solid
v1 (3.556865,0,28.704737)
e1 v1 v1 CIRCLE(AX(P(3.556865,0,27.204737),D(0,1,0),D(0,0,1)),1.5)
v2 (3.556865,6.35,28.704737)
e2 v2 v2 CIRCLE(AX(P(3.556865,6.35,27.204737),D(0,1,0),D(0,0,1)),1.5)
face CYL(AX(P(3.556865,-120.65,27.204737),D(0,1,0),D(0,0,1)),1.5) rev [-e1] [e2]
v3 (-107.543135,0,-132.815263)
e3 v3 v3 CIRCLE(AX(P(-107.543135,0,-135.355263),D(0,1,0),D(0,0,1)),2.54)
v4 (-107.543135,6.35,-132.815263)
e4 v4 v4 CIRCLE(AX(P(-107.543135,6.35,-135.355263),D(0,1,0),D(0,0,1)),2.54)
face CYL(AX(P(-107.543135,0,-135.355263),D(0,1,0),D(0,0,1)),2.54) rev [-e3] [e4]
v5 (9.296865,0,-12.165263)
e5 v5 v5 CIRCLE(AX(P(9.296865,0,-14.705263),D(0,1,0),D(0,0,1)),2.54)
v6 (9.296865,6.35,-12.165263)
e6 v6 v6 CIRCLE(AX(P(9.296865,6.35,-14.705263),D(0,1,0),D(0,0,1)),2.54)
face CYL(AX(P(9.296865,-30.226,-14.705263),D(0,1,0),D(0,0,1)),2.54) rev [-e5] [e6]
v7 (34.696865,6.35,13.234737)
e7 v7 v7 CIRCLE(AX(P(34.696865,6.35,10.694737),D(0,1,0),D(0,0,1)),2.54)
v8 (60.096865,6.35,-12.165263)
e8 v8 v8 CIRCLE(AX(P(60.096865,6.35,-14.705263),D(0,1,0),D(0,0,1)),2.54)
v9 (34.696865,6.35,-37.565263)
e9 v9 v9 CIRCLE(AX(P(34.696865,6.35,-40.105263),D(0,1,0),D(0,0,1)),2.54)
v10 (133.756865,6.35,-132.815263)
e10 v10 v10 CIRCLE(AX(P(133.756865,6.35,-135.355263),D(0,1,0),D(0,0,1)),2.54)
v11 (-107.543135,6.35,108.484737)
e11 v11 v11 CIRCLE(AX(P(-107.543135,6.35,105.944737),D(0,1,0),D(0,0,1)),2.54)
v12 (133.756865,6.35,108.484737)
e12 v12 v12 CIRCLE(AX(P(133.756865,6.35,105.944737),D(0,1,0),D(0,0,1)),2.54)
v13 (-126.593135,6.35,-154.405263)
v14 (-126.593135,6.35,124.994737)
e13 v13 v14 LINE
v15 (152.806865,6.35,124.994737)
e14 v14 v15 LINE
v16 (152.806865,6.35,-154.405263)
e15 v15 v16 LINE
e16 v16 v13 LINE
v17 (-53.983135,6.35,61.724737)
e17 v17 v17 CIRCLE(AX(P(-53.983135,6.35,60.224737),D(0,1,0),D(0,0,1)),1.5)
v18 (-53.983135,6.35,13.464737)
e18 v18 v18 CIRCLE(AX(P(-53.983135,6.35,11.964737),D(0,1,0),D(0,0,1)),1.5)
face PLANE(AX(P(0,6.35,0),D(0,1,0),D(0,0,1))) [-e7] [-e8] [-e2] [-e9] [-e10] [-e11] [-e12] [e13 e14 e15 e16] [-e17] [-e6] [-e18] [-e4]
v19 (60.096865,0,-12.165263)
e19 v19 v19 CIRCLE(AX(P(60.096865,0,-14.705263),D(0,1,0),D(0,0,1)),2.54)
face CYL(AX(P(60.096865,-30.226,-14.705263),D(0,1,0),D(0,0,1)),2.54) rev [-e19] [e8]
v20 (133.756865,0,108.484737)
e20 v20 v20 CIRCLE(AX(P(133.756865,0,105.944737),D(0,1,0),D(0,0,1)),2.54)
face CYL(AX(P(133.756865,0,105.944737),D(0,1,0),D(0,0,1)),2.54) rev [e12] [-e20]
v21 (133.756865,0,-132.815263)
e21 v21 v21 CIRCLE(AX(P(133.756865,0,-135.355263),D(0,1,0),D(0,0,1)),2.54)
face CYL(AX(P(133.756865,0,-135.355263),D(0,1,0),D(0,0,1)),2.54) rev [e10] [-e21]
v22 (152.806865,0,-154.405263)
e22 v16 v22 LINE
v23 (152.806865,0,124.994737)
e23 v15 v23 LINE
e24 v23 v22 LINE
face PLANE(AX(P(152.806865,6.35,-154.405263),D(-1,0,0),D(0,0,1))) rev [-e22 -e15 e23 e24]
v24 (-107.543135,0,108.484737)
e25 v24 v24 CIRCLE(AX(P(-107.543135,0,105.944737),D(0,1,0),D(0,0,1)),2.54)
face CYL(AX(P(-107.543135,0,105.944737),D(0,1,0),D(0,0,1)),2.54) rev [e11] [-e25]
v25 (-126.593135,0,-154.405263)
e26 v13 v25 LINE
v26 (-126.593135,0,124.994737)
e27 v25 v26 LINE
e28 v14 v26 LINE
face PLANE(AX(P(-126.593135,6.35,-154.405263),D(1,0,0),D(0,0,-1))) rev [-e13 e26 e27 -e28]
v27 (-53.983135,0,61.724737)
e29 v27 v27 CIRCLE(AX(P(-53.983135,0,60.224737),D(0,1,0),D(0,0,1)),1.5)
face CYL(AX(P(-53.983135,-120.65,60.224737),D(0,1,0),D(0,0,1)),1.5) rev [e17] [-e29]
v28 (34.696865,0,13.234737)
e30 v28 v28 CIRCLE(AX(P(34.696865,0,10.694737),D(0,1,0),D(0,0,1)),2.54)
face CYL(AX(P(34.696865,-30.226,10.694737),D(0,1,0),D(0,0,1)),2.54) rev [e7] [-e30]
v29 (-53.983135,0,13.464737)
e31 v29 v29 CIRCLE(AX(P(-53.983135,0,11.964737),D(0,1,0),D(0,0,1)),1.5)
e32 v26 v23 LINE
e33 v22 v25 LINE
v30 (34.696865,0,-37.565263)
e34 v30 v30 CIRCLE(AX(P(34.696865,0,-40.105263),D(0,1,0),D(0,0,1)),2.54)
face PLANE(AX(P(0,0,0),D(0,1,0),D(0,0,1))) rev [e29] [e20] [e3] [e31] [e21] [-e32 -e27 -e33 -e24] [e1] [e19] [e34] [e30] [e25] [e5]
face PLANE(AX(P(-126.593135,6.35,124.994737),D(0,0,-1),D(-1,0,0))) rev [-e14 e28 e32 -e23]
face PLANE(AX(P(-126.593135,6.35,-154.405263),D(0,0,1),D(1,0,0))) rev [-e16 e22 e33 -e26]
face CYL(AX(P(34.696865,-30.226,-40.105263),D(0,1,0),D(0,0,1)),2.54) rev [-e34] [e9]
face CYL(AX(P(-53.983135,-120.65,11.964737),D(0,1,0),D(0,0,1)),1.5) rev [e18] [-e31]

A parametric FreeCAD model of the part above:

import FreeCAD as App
import Part
import Sketcher
Q = App.Units.Quantity


def add_polygon(sketch, points):
    """Adds a closed chain of lines whose ends are joined by coincident constraints."""
    first, n = sketch.GeometryCount, len(points)
    for a, b in zip(points, points[1:] + points[:1]):
        sketch.addGeometry(Part.LineSegment(App.Vector(*a, 0), App.Vector(*b, 0)), False)
    for i in range(n):
        sketch.addConstraint(Sketcher.Constraint("Coincident", first + i, 2, first + (i + 1) % n, 1))

doc = App.newDocument("Part")
body = doc.addObject("PartDesign::Body", "Body")

# Sketch on XZ plane
sketch1 = body.newObject("Sketcher::SketchObject", "Sketch")
sketch1.AttachmentSupport = (doc.getObject("XZ_Plane"), [""])
sketch1.MapMode = "FlatFace"
add_polygon(sketch1, [(-126.593135, -154.405263), (-126.593135, 124.994737), (152.806865, 124.994737), (152.806865, -154.405263)])  # lines 0-3
sketch1.addConstraint([
    Sketcher.Constraint("Vertical", 0),
    Sketcher.Constraint("Horizontal", 1),
    Sketcher.Constraint("Vertical", 2),
    Sketcher.Constraint("Horizontal", 3),
    Sketcher.Constraint("Equal", 3, 0),
    Sketcher.Constraint("DistanceX", 1, 1, 1, 2, Q("11 in")),
    Sketcher.Constraint("DistanceX", 0, 2, -1, 1, 126.593135),
    Sketcher.Constraint("DistanceY", -1, 1, 0, 2, 124.994737),
])
pad1 = body.newObject("PartDesign::Pad", "Pad")
pad1.Profile = sketch1
pad1.Length = Q("0.25 in")
pad1.Reversed = True

# Sketch on XZ plane
sketch2 = body.newObject("Sketcher::SketchObject", "Sketch001")
sketch2.AttachmentSupport = (doc.getObject("XZ_Plane"), [""])
sketch2.MapMode = "FlatFace"
sketch2.AttachmentOffset = App.Placement(App.Vector(0, 0, -0.25 * 25.4), App.Rotation())
sketch2.addGeometry([
    Part.Circle(App.Vector(-107.543135, -135.355263, 0), App.Vector(0, 0, 1), 2.54),
    Part.Circle(App.Vector(133.756865, -135.355263, 0), App.Vector(0, 0, 1), 2.54),
    Part.Circle(App.Vector(133.756865, 105.944737, 0), App.Vector(0, 0, 1), 2.54),
    Part.Circle(App.Vector(-107.543135, 105.944737, 0), App.Vector(0, 0, 1), 2.54),
], False)
sketch2.addConstraint([
    Sketcher.Constraint("Equal", 0, 1),
    Sketcher.Constraint("Equal", 1, 2),
    Sketcher.Constraint("Equal", 2, 3),
    Sketcher.Constraint("Horizontal", 0, 3, 1, 3),
    Sketcher.Constraint("Horizontal", 2, 3, 3, 3),
    Sketcher.Constraint("Vertical", 1, 3, 2, 3),
    Sketcher.Constraint("Vertical", 0, 3, 3, 3),
    Sketcher.Constraint("Diameter", 0, Q("0.2 in")),
    Sketcher.Constraint("DistanceX", 0, 3, 1, 3, Q("9.5 in")),
    Sketcher.Constraint("DistanceY", 1, 3, 2, 3, Q("9.5 in")),
    Sketcher.Constraint("DistanceX", 0, 3, -1, 1, 107.543135),
    Sketcher.Constraint("DistanceY", 0, 3, -1, 1, 135.355263),
])
pocket1 = body.newObject("PartDesign::Pocket", "Pocket")
pocket1.Profile = sketch2
pocket1.Length = Q("0.25 in")
pocket1.Reversed = True

# Sketch on XZ plane
sketch3 = body.newObject("Sketcher::SketchObject", "Sketch002")
sketch3.AttachmentSupport = (doc.getObject("XZ_Plane"), [""])
sketch3.MapMode = "FlatFace"
sketch3.AttachmentOffset = App.Placement(App.Vector(0, 0, -0.25 * 25.4), App.Rotation())
sketch3.addGeometry([
    Part.Circle(App.Vector(3.556865, 27.204737, 0), App.Vector(0, 0, 1), 1.5),
    Part.Circle(App.Vector(-53.983135, 60.224737, 0), App.Vector(0, 0, 1), 1.5),
    Part.Circle(App.Vector(-53.983135, 11.964737, 0), App.Vector(0, 0, 1), 1.5),
], False)
sketch3.addConstraint([
    Sketcher.Constraint("Equal", 0, 1),
    Sketcher.Constraint("Equal", 1, 2),
    Sketcher.Constraint("Vertical", 1, 3, 2, 3),
    Sketcher.Constraint("DistanceY", 0, 3, 1, 3, Q("1.3 in")),
    Sketcher.Constraint("DistanceY", 2, 3, 1, 3, Q("1.9 in")),
    Sketcher.Constraint("Diameter", 0, 3.0),
    Sketcher.Constraint("DistanceX", 1, 3, 0, 3, 57.54),
    Sketcher.Constraint("DistanceX", -1, 1, 0, 3, 3.556865),
    Sketcher.Constraint("DistanceY", -1, 1, 0, 3, 27.204737),
])
pocket2 = body.newObject("PartDesign::Pocket", "Pocket001")
pocket2.Profile = sketch3
pocket2.Length = Q("5 in")
pocket2.Reversed = True

# Sketch on XZ plane
sketch4 = body.newObject("Sketcher::SketchObject", "Sketch003")
sketch4.AttachmentSupport = (doc.getObject("XZ_Plane"), [""])
sketch4.MapMode = "FlatFace"
sketch4.AttachmentOffset = App.Placement(App.Vector(0, 0, -0.25 * 25.4), App.Rotation())
sketch4.addGeometry([
    Part.Circle(App.Vector(34.696865, -40.105263, 0), App.Vector(0, 0, 1), 2.54),
    Part.Circle(App.Vector(60.096865, -14.705263, 0), App.Vector(0, 0, 1), 2.54),
    Part.Circle(App.Vector(34.696865, 10.694737, 0), App.Vector(0, 0, 1), 2.54),
    Part.Circle(App.Vector(9.296865, -14.705263, 0), App.Vector(0, 0, 1), 2.54),
], False)
sketch4.addConstraint([
    Sketcher.Constraint("Equal", 0, 1),
    Sketcher.Constraint("Equal", 1, 2),
    Sketcher.Constraint("Equal", 2, 3),
    Sketcher.Constraint("Horizontal", 1, 3, 3, 3),
    Sketcher.Constraint("Vertical", 0, 3, 2, 3),
    Sketcher.Constraint("Diameter", 0, Q("0.2 in")),
    Sketcher.Constraint("DistanceX", 0, 3, 1, 3, Q("1 in")),
    Sketcher.Constraint("DistanceY", 0, 3, 1, 3, Q("1 in")),
    Sketcher.Constraint("DistanceY", 1, 3, 2, 3, Q("1 in")),
    Sketcher.Constraint("DistanceX", 3, 3, 0, 3, Q("1 in")),
    Sketcher.Constraint("DistanceX", -1, 1, 0, 3, 34.696865),
    Sketcher.Constraint("DistanceY", 0, 3, -1, 1, 40.105263),
])
pocket3 = body.newObject("PartDesign::Pocket", "Pocket002")
pocket3.Profile = sketch4
pocket3.Length = Q("1.44 in")
pocket3.Reversed = True

doc.recompute()
